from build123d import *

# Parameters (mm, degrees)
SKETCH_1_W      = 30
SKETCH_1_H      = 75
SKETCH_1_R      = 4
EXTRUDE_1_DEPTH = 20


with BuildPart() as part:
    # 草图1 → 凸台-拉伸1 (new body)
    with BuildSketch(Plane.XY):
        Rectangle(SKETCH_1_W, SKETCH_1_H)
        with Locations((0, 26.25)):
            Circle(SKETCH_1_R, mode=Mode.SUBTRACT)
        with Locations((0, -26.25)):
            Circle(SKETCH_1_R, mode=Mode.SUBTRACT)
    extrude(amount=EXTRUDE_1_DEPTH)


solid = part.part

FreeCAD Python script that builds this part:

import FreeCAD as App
import Part
import Sketcher

doc = App.newDocument("Part")
body = doc.addObject("PartDesign::Body", "Body")

# Sketch on XY plane
sketch1 = body.newObject("Sketcher::SketchObject", "Sketch")
sketch1.AttachmentSupport = (doc.getObject("XY_Plane"), [""])
sketch1.MapMode = "FlatFace"
sketch1.addGeometry(Part.LineSegment(App.Vector(-15, 37.5, 0), App.Vector(-15, -37.5, 0)), False)
sketch1.addGeometry(Part.LineSegment(App.Vector(-15, -37.5, 0), App.Vector(15, -37.5, 0)), False)
sketch1.addGeometry(Part.LineSegment(App.Vector(15, -37.5, 0), App.Vector(15, 37.5, 0)), False)
sketch1.addGeometry(Part.LineSegment(App.Vector(15, 37.5, 0), App.Vector(-15, 37.5, 0)), False)
sketch1.addGeometry(Part.Circle(App.Vector(0, -26.2, 0), App.Vector(0, 0, 1), 4), False)
sketch1.addGeometry(Part.Circle(App.Vector(0, 26.2, 0), App.Vector(0, 0, 1), 4), False)
sketch1.addConstraint(Sketcher.Constraint("Coincident", 0, 2, 1, 1))
sketch1.addConstraint(Sketcher.Constraint("Coincident", 1, 2, 2, 1))
sketch1.addConstraint(Sketcher.Constraint("Coincident", 2, 2, 3, 1))
sketch1.addConstraint(Sketcher.Constraint("Coincident", 3, 2, 0, 1))
sketch1.addConstraint(Sketcher.Constraint("Vertical", 0))
sketch1.addConstraint(Sketcher.Constraint("Horizontal", 1))
sketch1.addConstraint(Sketcher.Constraint("Vertical", 2))
sketch1.addConstraint(Sketcher.Constraint("Horizontal", 3))
sketch1.addConstraint(Sketcher.Constraint("Equal", 4, 5))
sketch1.addConstraint(Sketcher.Constraint("Symmetric", 4, 3, 5, 3, -1, 1))
sketch1.addConstraint(Sketcher.Constraint("Symmetric", 0, 2, 2, 2, -1, 1))
sketch1.addConstraint(Sketcher.Constraint("PointOnObject", 4, 3, -2))
sketch1.addConstraint(Sketcher.Constraint("Diameter", 4, 8.0))
sketch1.addConstraint(Sketcher.Constraint("DistanceX", 1, 1, 1, 2, 30.0))
sketch1.addConstraint(Sketcher.Constraint("DistanceY", 0, 2, 0, 1, 75.0))
sketch1.addConstraint(Sketcher.Constraint("DistanceY", 4, 3, 5, 3, 52.5))
pad1 = body.newObject("PartDesign::Pad", "Pad")
pad1.Profile = sketch1
pad1.Length = 20

doc.recompute()
